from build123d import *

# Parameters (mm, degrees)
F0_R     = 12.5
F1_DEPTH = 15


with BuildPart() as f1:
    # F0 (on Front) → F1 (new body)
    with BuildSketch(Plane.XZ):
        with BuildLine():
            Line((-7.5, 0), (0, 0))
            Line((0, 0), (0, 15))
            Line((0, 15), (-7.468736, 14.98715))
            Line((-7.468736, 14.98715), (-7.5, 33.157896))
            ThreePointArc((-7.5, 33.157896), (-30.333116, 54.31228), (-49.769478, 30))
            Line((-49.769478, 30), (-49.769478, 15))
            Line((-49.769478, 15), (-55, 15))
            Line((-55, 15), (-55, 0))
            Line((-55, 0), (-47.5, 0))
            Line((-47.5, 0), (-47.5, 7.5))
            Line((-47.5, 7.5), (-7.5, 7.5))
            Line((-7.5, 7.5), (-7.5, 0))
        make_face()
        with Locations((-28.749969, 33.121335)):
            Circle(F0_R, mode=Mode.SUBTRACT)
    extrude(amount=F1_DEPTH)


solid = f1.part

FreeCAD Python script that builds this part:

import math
import FreeCAD as App
import Part
import Sketcher

V = App.Vector
Q = App.Units.Quantity

doc = App.newDocument("Part")
body = doc.addObject("PartDesign::Body", "Body")

sketch1 = body.newObject("Sketcher::SketchObject", "Sketch")
sketch1.AttachmentSupport = (doc.getObject("XZ_Plane"), [""])
sketch1.MapMode = "FlatFace"
sketch1.addGeometry([
    Part.LineSegment(V(-8, 0, 0), V(0, 0, 0)),
    Part.LineSegment(V(0, 0, 0), V(0, 15, 0)),
    Part.LineSegment(V(0, 15, 0), V(-7, 15, 0)),
    Part.LineSegment(V(-7, 15, 0), V(-8, 33, 0)),
    Part.ArcOfCircle(Part.Circle(V(-29, 33, 0), V(0, 0, 1), 21), math.radians(0), math.radians(188)),
    Part.LineSegment(V(-50, 30, 0), V(-50, 15, 0)),
    Part.LineSegment(V(-50, 15, 0), V(-55, 15, 0)),
    Part.LineSegment(V(-55, 15, 0), V(-55, 0, 0)),
    Part.LineSegment(V(-55, 0, 0), V(-48, 0, 0)),
    Part.LineSegment(V(-48, 0, 0), V(-48, 8, 0)),
    Part.LineSegment(V(-48, 8, 0), V(-8, 8, 0)),
    Part.LineSegment(V(-8, 8, 0), V(-8, 0, 0)),
    Part.Circle(V(-29, 33, 0), V(0, 0, 1), 12),
], False)
sketch1.addConstraint([
    Sketcher.Constraint("Coincident", 0, 2, 1, 1),
    Sketcher.Constraint("Coincident", 1, 2, 2, 1),
    Sketcher.Constraint("Coincident", 2, 2, 3, 1),
    Sketcher.Constraint("Tangent", 3, 2, 4, 1),
    Sketcher.Constraint("Coincident", 4, 2, 5, 1),
    Sketcher.Constraint("Coincident", 5, 2, 6, 1),
    Sketcher.Constraint("Coincident", 6, 2, 7, 1),
    Sketcher.Constraint("Coincident", 7, 2, 8, 1),
    Sketcher.Constraint("Coincident", 8, 2, 9, 1),
    Sketcher.Constraint("Coincident", 9, 2, 10, 1),
    Sketcher.Constraint("Coincident", 10, 2, 11, 1),
    Sketcher.Constraint("Coincident", 11, 2, 0, 1),
    Sketcher.Constraint("Horizontal", 0),
    Sketcher.Constraint("Vertical", 1),
    Sketcher.Constraint("Vertical", 5),
    Sketcher.Constraint("Horizontal", 6),
    Sketcher.Constraint("Vertical", 7),
    Sketcher.Constraint("Horizontal", 8),
    Sketcher.Constraint("Vertical", 9),
    Sketcher.Constraint("Horizontal", 10),
    Sketcher.Constraint("Vertical", 11),
    Sketcher.Constraint("Coincident", 0, 2, -1, 1),
    Sketcher.Constraint("Coincident", 12, 3, 4, 3),
    Sketcher.Constraint("PointOnObject", 7, 2, -1),
    Sketcher.Constraint("Perpendicular", 2, 3),
    Sketcher.Constraint("Horizontal", 1, 2, 5, 2),
    Sketcher.Constraint("Vertical", 3, 2, 10, 2),
    Sketcher.Constraint("Equal", 0, 8),
    Sketcher.Constraint("Equal", 1, 5),
    Sketcher.Constraint("Equal", 8, 9),
    Sketcher.Constraint("Diameter", 12, Q("25 mm")),
    Sketcher.Constraint("DistanceX", 10, 1, 10, 2, Q("40 mm")),
    Sketcher.Constraint("DistanceY", 1, 1, 1, 2, Q("15 mm")),
    Sketcher.Constraint("Radius", 4, Q("21.25 mm")),
    Sketcher.Constraint("DistanceX", 0, 1, 0, 2, Q("7.5 mm")),
    Sketcher.Constraint("DistanceX", 6, 2, 6, 1, Q("5.230522 mm")),
    Sketcher.Constraint("DistanceY", -1, 1, 2, 2, Q("14.98715 mm")),
])
pad1 = body.newObject("PartDesign::Pad", "Pad")
pad1.Profile = sketch1
pad1.Length = 15

doc.recompute()
